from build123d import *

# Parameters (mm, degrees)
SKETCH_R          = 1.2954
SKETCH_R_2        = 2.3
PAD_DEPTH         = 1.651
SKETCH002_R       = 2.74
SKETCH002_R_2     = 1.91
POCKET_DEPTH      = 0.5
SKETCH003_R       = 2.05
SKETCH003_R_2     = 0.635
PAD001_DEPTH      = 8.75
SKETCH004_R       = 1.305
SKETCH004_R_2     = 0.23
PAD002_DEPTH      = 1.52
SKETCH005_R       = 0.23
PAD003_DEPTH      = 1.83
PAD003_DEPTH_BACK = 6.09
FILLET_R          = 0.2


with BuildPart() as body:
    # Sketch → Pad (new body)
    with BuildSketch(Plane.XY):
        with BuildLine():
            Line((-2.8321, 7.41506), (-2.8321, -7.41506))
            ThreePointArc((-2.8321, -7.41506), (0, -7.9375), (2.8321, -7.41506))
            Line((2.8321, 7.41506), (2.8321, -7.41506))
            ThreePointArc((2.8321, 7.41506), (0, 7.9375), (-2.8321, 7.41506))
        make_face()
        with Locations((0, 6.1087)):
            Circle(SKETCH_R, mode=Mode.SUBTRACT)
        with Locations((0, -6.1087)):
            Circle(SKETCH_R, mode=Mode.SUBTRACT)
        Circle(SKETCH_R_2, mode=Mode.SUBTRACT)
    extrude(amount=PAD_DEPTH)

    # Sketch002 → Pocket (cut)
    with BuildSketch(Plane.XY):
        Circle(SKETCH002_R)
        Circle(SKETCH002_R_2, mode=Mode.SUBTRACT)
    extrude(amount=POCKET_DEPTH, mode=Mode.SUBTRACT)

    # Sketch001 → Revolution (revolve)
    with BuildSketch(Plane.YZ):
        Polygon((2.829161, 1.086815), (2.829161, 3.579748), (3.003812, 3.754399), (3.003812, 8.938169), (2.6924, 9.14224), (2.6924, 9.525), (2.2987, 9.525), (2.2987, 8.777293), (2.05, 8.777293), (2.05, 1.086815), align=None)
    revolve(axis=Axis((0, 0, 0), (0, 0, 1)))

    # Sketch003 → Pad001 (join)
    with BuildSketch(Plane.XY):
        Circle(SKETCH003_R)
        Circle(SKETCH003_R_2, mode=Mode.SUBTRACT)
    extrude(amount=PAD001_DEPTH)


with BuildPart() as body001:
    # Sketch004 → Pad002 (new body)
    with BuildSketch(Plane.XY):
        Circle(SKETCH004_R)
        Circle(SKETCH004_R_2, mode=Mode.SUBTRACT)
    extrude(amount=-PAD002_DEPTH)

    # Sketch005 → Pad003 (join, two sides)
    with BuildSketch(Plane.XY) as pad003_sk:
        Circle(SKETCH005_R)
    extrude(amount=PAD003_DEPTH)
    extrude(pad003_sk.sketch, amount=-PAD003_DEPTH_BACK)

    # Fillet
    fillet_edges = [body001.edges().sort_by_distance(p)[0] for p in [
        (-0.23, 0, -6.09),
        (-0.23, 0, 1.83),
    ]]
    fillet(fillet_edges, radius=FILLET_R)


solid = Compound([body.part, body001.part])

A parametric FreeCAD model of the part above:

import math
import FreeCAD as App
import Part
import Sketcher
from FreeCAD import Vector
Q = App.Units.Quantity


def edges_at(feature, points):
    """Names of the edges that pass closest to the given points."""
    edges = feature.Shape.Edges
    near = lambda p: min(range(len(edges)), key=lambda i: edges[i].distToShape(Part.Vertex(*p))[0])
    return sorted({f"Edge{near(p) + 1}" for p in points})

doc = App.newDocument("Part")
params = doc.addObject("Spreadsheet::Sheet", "Params")
for row, (alias, value) in enumerate([
    ("sketch1_diameter", "4.6 mm"),
    ("pad1_length", "1.651 mm"),
    ("sketch2_diameter", "5.48 mm"),
    ("sketch2_diameter2", "3.82 mm"),
    ("pocket1_length", "0.5 mm"),
    ("revolution_angle", "360 deg"),
    ("sketch4_diameter", "4.1 mm"),
    ("sketch4_diameter2", "1.27 mm"),
    ("pad2_length", "8.75 mm"),
    ("sketch5_diameter", "2.61 mm"),
    ("sketch5_diameter2", "0.46 mm"),
    ("pad3_length", "1.52 mm"),
    ("sketch6_diameter", "0.46 mm"),
    ("pad4_length", "1.83 mm"),
    ("pad4_length2", "6.09 mm"),
    ("fillet_radius", "0.2 mm"),
], start=1):
    params.set(f"A{row}", alias)
    params.set(f"B{row}", "=" + value)
    params.setAlias(f"B{row}", alias)

body = doc.addObject("PartDesign::Body", "Body")

sketch1 = body.newObject("Sketcher::SketchObject", "Sketch")
sketch1.AttachmentSupport = (doc.getObject("XY_Plane"), [""])
sketch1.MapMode = "FlatFace"
sketch1.addGeometry(Part.LineSegment(Vector(-2.8321, 7.41506, 0), Vector(-2.8321, -7.41506, 0)), False)
sketch1.addGeometry(Part.ArcOfCircle(Part.Circle(Vector(0, -0.000001, 0), Vector(0, 0, 1), 7.937499), math.radians(-110.903805), math.radians(-69.096195)), False)
sketch1.addGeometry(Part.LineSegment(Vector(2.8321, -7.41506, 0), Vector(2.8321, 7.41506, 0)), False)
sketch1.addGeometry(Part.ArcOfCircle(Part.Circle(Vector(0, 0.000001, 0), Vector(0, 0, 1), 7.937499), math.radians(69.096195), math.radians(110.903805)), False)
sketch1.addGeometry(Part.Circle(Vector(0, -6.1087, 0), Vector(0, 0, 1), 1.2954), False)
sketch1.addGeometry(Part.Circle(Vector(0, 0, 0), Vector(0, 0, 1), 2.3), False)
sketch1.addGeometry(Part.Circle(Vector(0, 6.1087, 0), Vector(0, 0, 1), 1.2954), False)
sketch1.addConstraint(Sketcher.Constraint("Coincident", 0, 2, 1, 1))
sketch1.addConstraint(Sketcher.Constraint("Coincident", 1, 2, 2, 1))
sketch1.addConstraint(Sketcher.Constraint("Coincident", 2, 2, 3, 1))
sketch1.addConstraint(Sketcher.Constraint("Coincident", 3, 2, 0, 1))
sketch1.addConstraint(Sketcher.Constraint("Vertical", 0))
sketch1.addConstraint(Sketcher.Constraint("Vertical", 2))
sketch1.addConstraint(Sketcher.Constraint("Coincident", 1, 3, -1, 1))
sketch1.addConstraint(Sketcher.Constraint("Coincident", 3, 3, -1, 1))
sketch1.addConstraint(Sketcher.Constraint("Coincident", 5, 3, -1, 1))
sketch1.addConstraint(Sketcher.Constraint("Equal", 1, 3))
sketch1.addConstraint(Sketcher.Constraint("Equal", 4, 6))
sketch1.addConstraint(Sketcher.Constraint("Symmetric", 4, 3, 6, 3, -1, 1))
sketch1.addConstraint(Sketcher.Constraint("PointOnObject", 4, 3, -2))
sketch1.addConstraint(Sketcher.Constraint("Horizontal", 0, 2, 1, 2))
sketch1.addConstraint(Sketcher.Constraint("Diameter", 5, Q("4.6 mm")))
sketch1.addConstraint(Sketcher.Constraint("Diameter", 4, Q("2.5908 mm")))
sketch1.addConstraint(Sketcher.Constraint("Radius", 1, Q("7.937499 mm")))
sketch1.addConstraint(Sketcher.Constraint("DistanceY", 0, 2, 0, 1, Q("14.83012 mm")))
sketch1.addConstraint(Sketcher.Constraint("DistanceY", 4, 3, -1, 1, Q("6.1087 mm")))
sketch1.setExpression("Constraints[14]", "Params.sketch1_diameter")
pad1 = body.newObject("PartDesign::Pad", "Pad")
pad1.Profile = sketch1
pad1.setExpression("Length", "Params.pad1_length")

sketch2 = body.newObject("Sketcher::SketchObject", "Sketch001")
sketch2.AttachmentSupport = (doc.getObject("XY_Plane"), [""])
sketch2.MapMode = "FlatFace"
sketch2.addGeometry(Part.Circle(Vector(0, 0, 0), Vector(0, 0, 1), 2.74), False)
sketch2.addGeometry(Part.Circle(Vector(0, 0, 0), Vector(0, 0, 1), 1.91), False)
sketch2.addConstraint(Sketcher.Constraint("Coincident", 0, 3, -1, 1))
sketch2.addConstraint(Sketcher.Constraint("Coincident", 1, 3, -1, 1))
sketch2.addConstraint(Sketcher.Constraint("Diameter", 0, Q("5.48 mm")))
sketch2.addConstraint(Sketcher.Constraint("Diameter", 1, Q("3.82 mm")))
sketch2.setExpression("Constraints[2]", "Params.sketch2_diameter")
sketch2.setExpression("Constraints[3]", "Params.sketch2_diameter2")
pocket1 = body.newObject("PartDesign::Pocket", "Pocket")
pocket1.Profile = sketch2
pocket1.setExpression("Length", "Params.pocket1_length")
pocket1.Reversed = True

sketch3 = body.newObject("Sketcher::SketchObject", "Sketch002")
sketch3.AttachmentSupport = (doc.getObject("YZ_Plane"), [""])
sketch3.MapMode = "FlatFace"
sketch3.addGeometry(Part.LineSegment(Vector(2.829161, 1.086815, 0), Vector(2.829161, 3.579748, 0)), False)
sketch3.addGeometry(Part.LineSegment(Vector(2.829161, 3.579748, 0), Vector(3.003812, 3.754399, 0)), False)
sketch3.addGeometry(Part.LineSegment(Vector(3.003812, 3.754399, 0), Vector(3.003812, 8.938169, 0)), False)
sketch3.addGeometry(Part.LineSegment(Vector(3.003812, 8.938169, 0), Vector(2.6924, 9.14224, 0)), False)
sketch3.addGeometry(Part.LineSegment(Vector(2.6924, 9.14224, 0), Vector(2.6924, 9.525, 0)), False)
sketch3.addGeometry(Part.LineSegment(Vector(2.6924, 9.525, 0), Vector(2.2987, 9.525, 0)), False)
sketch3.addGeometry(Part.LineSegment(Vector(2.2987, 9.525, 0), Vector(2.2987, 8.777293, 0)), False)
sketch3.addGeometry(Part.LineSegment(Vector(2.2987, 8.777293, 0), Vector(2.05, 8.777293, 0)), False)
sketch3.addGeometry(Part.LineSegment(Vector(2.05, 8.777293, 0), Vector(2.05, 1.086815, 0)), False)
sketch3.addGeometry(Part.LineSegment(Vector(2.05, 1.086815, 0), Vector(2.829161, 1.086815, 0)), False)
sketch3.addConstraint(Sketcher.Constraint("Coincident", 0, 2, 1, 1))
sketch3.addConstraint(Sketcher.Constraint("Coincident", 1, 2, 2, 1))
sketch3.addConstraint(Sketcher.Constraint("Coincident", 2, 2, 3, 1))
sketch3.addConstraint(Sketcher.Constraint("Coincident", 3, 2, 4, 1))
sketch3.addConstraint(Sketcher.Constraint("Coincident", 4, 2, 5, 1))
sketch3.addConstraint(Sketcher.Constraint("Coincident", 5, 2, 6, 1))
sketch3.addConstraint(Sketcher.Constraint("Coincident", 6, 2, 7, 1))
sketch3.addConstraint(Sketcher.Constraint("Coincident", 7, 2, 8, 1))
sketch3.addConstraint(Sketcher.Constraint("Coincident", 8, 2, 9, 1))
sketch3.addConstraint(Sketcher.Constraint("Coincident", 9, 2, 0, 1))
sketch3.addConstraint(Sketcher.Constraint("Vertical", 0))
sketch3.addConstraint(Sketcher.Constraint("Vertical", 2))
sketch3.addConstraint(Sketcher.Constraint("Vertical", 4))
sketch3.addConstraint(Sketcher.Constraint("Horizontal", 5))
sketch3.addConstraint(Sketcher.Constraint("Vertical", 6))
sketch3.addConstraint(Sketcher.Constraint("Horizontal", 7))
sketch3.addConstraint(Sketcher.Constraint("Vertical", 8))
sketch3.addConstraint(Sketcher.Constraint("Horizontal", 9))
sketch3.addConstraint(Sketcher.Constraint("Angle", 1, Q("45 deg")))
sketch3.addConstraint(Sketcher.Constraint("DistanceX", -1, 1, 7, 2, Q("2.05 mm")))
sketch3.addConstraint(Sketcher.Constraint("DistanceX", 5, 2, 5, 1, Q("0.3937 mm")))
sketch3.addConstraint(Sketcher.Constraint("DistanceX", 7, 2, 7, 1, Q("0.2487 mm")))
sketch3.addConstraint(Sketcher.Constraint("DistanceY", -1, 1, 4, 2, Q("9.525 mm")))
sketch3.addConstraint(Sketcher.Constraint("DistanceX", 9, 1, 9, 2, Q("0.779161 mm")))
sketch3.addConstraint(Sketcher.Constraint("DistanceY", 2, 1, 2, 2, Q("5.18377 mm")))
sketch3.addConstraint(Sketcher.Constraint("DistanceY", 4, 1, 4, 2, Q("0.38276 mm")))
sketch3.addConstraint(Sketcher.Constraint("DistanceY", 8, 2, 8, 1, Q("7.690478 mm")))
sketch3.addConstraint(Sketcher.Constraint("DistanceY", -1, 1, 1, 2, Q("3.754399 mm")))
sketch3.addConstraint(Sketcher.Constraint("Distance", 3, Q("0.37232 mm")))
sketch3.addConstraint(Sketcher.Constraint("DistanceY", 0, 1, 0, 2, Q("2.492933 mm")))
revolution = body.newObject("PartDesign::Revolution", "Revolution")
revolution.Profile = sketch3
revolution.ReferenceAxis = (sketch3, ["V_Axis"])
revolution.setExpression("Angle", "Params.revolution_angle")

sketch4 = body.newObject("Sketcher::SketchObject", "Sketch003")
sketch4.AttachmentSupport = (doc.getObject("XY_Plane"), [""])
sketch4.MapMode = "FlatFace"
sketch4.addGeometry(Part.Circle(Vector(0, 0, 0), Vector(0, 0, 1), 2.05), False)
sketch4.addGeometry(Part.Circle(Vector(0, 0, 0), Vector(0, 0, 1), 0.635), False)
sketch4.addConstraint(Sketcher.Constraint("Coincident", 0, 3, -1, 1))
sketch4.addConstraint(Sketcher.Constraint("Coincident", 1, 3, -1, 1))
sketch4.addConstraint(Sketcher.Constraint("Diameter", 0, Q("4.1 mm")))
sketch4.addConstraint(Sketcher.Constraint("Diameter", 1, Q("1.27 mm")))
sketch4.setExpression("Constraints[2]", "Params.sketch4_diameter")
sketch4.setExpression("Constraints[3]", "Params.sketch4_diameter2")
pad2 = body.newObject("PartDesign::Pad", "Pad001")
pad2.Profile = sketch4
pad2.setExpression("Length", "Params.pad2_length")
body2 = doc.addObject("PartDesign::Body", "Body001")

sketch5 = body2.newObject("Sketcher::SketchObject", "Sketch004")
sketch5.AttachmentSupport = (doc.getObject("XY_Plane001"), [""])
sketch5.MapMode = "FlatFace"
sketch5.addGeometry(Part.Circle(Vector(0, 0, 0), Vector(0, 0, 1), 1.305), False)
sketch5.addGeometry(Part.Circle(Vector(0, 0, 0), Vector(0, 0, 1), 0.23), False)
sketch5.addConstraint(Sketcher.Constraint("Coincident", 0, 3, -1, 1))
sketch5.addConstraint(Sketcher.Constraint("Coincident", 1, 3, -1, 1))
sketch5.addConstraint(Sketcher.Constraint("Diameter", 0, Q("2.61 mm")))
sketch5.addConstraint(Sketcher.Constraint("Diameter", 1, Q("0.46 mm")))
sketch5.setExpression("Constraints[2]", "Params.sketch5_diameter")
sketch5.setExpression("Constraints[3]", "Params.sketch5_diameter2")
pad3 = body2.newObject("PartDesign::Pad", "Pad002")
pad3.Profile = sketch5
pad3.setExpression("Length", "Params.pad3_length")
pad3.Reversed = True

sketch6 = body2.newObject("Sketcher::SketchObject", "Sketch005")
sketch6.AttachmentSupport = (doc.getObject("XY_Plane001"), [""])
sketch6.MapMode = "FlatFace"
sketch6.addGeometry(Part.Circle(Vector(0, 0, 0), Vector(0, 0, 1), 0.23), False)
sketch6.addConstraint(Sketcher.Constraint("Coincident", 0, 3, -1, 1))
sketch6.addConstraint(Sketcher.Constraint("Diameter", 0, Q("0.46 mm")))
sketch6.setExpression("Constraints[1]", "Params.sketch6_diameter")
pad4 = body2.newObject("PartDesign::Pad", "Pad003")
pad4.Profile = sketch6
pad4.Type = "TwoLengths"
pad4.setExpression("Length", "Params.pad4_length")
pad4.setExpression("Length2", "Params.pad4_length2")
doc.recompute()

fillet = body2.newObject("PartDesign::Fillet", "Fillet")
fillet.Base = (pad4, edges_at(pad4, [(-0.23, 0, -6.09), (-0.23, 0, 1.83)]))
fillet.setExpression("Radius", "Params.fillet_radius")

doc.recompute()
